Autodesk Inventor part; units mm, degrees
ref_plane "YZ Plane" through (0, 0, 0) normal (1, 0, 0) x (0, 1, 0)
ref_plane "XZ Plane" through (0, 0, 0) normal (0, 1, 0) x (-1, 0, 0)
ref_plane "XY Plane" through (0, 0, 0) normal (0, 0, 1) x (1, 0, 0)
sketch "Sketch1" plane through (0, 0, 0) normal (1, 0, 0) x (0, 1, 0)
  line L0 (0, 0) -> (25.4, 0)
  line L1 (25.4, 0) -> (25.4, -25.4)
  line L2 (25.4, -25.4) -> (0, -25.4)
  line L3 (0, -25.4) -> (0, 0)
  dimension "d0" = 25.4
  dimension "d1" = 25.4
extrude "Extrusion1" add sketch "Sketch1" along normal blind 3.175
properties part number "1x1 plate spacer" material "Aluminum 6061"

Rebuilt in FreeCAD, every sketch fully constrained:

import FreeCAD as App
import Part
import Sketcher
from FreeCAD import Vector
Q = App.Units.Quantity

doc = App.newDocument("Part")
body = doc.addObject("PartDesign::Body", "Body")

# Sketch on YZ plane
sketch1 = body.newObject("Sketcher::SketchObject", "Sketch")
sketch1.AttachmentSupport = (doc.getObject("YZ_Plane"), [""])
sketch1.MapMode = "FlatFace"
sketch1.addGeometry([
    Part.LineSegment(Vector(25, 0, 0), Vector(0, 0, 0)),
    Part.LineSegment(Vector(0, 0, 0), Vector(0, -25, 0)),
    Part.LineSegment(Vector(0, -25, 0), Vector(25, -25, 0)),
    Part.LineSegment(Vector(25, -25, 0), Vector(25, 0, 0)),
], False)
sketch1.addConstraint([
    Sketcher.Constraint("Coincident", 0, 2, 1, 1),
    Sketcher.Constraint("Coincident", 1, 2, 2, 1),
    Sketcher.Constraint("Coincident", 2, 2, 3, 1),
    Sketcher.Constraint("Coincident", 3, 2, 0, 1),
    Sketcher.Constraint("Horizontal", 0),
    Sketcher.Constraint("Vertical", 1),
    Sketcher.Constraint("Horizontal", 2),
    Sketcher.Constraint("Vertical", 3),
    Sketcher.Constraint("Coincident", 0, 2, -1, 1),
    Sketcher.Constraint("Equal", 2, 1),
    Sketcher.Constraint("DistanceX", 0, 2, 0, 1, Q("1 in")),
])
pad1 = body.newObject("PartDesign::Pad", "Pad")
pad1.Profile = sketch1
pad1.Length = Q("0.125 in")

doc.recompute()
